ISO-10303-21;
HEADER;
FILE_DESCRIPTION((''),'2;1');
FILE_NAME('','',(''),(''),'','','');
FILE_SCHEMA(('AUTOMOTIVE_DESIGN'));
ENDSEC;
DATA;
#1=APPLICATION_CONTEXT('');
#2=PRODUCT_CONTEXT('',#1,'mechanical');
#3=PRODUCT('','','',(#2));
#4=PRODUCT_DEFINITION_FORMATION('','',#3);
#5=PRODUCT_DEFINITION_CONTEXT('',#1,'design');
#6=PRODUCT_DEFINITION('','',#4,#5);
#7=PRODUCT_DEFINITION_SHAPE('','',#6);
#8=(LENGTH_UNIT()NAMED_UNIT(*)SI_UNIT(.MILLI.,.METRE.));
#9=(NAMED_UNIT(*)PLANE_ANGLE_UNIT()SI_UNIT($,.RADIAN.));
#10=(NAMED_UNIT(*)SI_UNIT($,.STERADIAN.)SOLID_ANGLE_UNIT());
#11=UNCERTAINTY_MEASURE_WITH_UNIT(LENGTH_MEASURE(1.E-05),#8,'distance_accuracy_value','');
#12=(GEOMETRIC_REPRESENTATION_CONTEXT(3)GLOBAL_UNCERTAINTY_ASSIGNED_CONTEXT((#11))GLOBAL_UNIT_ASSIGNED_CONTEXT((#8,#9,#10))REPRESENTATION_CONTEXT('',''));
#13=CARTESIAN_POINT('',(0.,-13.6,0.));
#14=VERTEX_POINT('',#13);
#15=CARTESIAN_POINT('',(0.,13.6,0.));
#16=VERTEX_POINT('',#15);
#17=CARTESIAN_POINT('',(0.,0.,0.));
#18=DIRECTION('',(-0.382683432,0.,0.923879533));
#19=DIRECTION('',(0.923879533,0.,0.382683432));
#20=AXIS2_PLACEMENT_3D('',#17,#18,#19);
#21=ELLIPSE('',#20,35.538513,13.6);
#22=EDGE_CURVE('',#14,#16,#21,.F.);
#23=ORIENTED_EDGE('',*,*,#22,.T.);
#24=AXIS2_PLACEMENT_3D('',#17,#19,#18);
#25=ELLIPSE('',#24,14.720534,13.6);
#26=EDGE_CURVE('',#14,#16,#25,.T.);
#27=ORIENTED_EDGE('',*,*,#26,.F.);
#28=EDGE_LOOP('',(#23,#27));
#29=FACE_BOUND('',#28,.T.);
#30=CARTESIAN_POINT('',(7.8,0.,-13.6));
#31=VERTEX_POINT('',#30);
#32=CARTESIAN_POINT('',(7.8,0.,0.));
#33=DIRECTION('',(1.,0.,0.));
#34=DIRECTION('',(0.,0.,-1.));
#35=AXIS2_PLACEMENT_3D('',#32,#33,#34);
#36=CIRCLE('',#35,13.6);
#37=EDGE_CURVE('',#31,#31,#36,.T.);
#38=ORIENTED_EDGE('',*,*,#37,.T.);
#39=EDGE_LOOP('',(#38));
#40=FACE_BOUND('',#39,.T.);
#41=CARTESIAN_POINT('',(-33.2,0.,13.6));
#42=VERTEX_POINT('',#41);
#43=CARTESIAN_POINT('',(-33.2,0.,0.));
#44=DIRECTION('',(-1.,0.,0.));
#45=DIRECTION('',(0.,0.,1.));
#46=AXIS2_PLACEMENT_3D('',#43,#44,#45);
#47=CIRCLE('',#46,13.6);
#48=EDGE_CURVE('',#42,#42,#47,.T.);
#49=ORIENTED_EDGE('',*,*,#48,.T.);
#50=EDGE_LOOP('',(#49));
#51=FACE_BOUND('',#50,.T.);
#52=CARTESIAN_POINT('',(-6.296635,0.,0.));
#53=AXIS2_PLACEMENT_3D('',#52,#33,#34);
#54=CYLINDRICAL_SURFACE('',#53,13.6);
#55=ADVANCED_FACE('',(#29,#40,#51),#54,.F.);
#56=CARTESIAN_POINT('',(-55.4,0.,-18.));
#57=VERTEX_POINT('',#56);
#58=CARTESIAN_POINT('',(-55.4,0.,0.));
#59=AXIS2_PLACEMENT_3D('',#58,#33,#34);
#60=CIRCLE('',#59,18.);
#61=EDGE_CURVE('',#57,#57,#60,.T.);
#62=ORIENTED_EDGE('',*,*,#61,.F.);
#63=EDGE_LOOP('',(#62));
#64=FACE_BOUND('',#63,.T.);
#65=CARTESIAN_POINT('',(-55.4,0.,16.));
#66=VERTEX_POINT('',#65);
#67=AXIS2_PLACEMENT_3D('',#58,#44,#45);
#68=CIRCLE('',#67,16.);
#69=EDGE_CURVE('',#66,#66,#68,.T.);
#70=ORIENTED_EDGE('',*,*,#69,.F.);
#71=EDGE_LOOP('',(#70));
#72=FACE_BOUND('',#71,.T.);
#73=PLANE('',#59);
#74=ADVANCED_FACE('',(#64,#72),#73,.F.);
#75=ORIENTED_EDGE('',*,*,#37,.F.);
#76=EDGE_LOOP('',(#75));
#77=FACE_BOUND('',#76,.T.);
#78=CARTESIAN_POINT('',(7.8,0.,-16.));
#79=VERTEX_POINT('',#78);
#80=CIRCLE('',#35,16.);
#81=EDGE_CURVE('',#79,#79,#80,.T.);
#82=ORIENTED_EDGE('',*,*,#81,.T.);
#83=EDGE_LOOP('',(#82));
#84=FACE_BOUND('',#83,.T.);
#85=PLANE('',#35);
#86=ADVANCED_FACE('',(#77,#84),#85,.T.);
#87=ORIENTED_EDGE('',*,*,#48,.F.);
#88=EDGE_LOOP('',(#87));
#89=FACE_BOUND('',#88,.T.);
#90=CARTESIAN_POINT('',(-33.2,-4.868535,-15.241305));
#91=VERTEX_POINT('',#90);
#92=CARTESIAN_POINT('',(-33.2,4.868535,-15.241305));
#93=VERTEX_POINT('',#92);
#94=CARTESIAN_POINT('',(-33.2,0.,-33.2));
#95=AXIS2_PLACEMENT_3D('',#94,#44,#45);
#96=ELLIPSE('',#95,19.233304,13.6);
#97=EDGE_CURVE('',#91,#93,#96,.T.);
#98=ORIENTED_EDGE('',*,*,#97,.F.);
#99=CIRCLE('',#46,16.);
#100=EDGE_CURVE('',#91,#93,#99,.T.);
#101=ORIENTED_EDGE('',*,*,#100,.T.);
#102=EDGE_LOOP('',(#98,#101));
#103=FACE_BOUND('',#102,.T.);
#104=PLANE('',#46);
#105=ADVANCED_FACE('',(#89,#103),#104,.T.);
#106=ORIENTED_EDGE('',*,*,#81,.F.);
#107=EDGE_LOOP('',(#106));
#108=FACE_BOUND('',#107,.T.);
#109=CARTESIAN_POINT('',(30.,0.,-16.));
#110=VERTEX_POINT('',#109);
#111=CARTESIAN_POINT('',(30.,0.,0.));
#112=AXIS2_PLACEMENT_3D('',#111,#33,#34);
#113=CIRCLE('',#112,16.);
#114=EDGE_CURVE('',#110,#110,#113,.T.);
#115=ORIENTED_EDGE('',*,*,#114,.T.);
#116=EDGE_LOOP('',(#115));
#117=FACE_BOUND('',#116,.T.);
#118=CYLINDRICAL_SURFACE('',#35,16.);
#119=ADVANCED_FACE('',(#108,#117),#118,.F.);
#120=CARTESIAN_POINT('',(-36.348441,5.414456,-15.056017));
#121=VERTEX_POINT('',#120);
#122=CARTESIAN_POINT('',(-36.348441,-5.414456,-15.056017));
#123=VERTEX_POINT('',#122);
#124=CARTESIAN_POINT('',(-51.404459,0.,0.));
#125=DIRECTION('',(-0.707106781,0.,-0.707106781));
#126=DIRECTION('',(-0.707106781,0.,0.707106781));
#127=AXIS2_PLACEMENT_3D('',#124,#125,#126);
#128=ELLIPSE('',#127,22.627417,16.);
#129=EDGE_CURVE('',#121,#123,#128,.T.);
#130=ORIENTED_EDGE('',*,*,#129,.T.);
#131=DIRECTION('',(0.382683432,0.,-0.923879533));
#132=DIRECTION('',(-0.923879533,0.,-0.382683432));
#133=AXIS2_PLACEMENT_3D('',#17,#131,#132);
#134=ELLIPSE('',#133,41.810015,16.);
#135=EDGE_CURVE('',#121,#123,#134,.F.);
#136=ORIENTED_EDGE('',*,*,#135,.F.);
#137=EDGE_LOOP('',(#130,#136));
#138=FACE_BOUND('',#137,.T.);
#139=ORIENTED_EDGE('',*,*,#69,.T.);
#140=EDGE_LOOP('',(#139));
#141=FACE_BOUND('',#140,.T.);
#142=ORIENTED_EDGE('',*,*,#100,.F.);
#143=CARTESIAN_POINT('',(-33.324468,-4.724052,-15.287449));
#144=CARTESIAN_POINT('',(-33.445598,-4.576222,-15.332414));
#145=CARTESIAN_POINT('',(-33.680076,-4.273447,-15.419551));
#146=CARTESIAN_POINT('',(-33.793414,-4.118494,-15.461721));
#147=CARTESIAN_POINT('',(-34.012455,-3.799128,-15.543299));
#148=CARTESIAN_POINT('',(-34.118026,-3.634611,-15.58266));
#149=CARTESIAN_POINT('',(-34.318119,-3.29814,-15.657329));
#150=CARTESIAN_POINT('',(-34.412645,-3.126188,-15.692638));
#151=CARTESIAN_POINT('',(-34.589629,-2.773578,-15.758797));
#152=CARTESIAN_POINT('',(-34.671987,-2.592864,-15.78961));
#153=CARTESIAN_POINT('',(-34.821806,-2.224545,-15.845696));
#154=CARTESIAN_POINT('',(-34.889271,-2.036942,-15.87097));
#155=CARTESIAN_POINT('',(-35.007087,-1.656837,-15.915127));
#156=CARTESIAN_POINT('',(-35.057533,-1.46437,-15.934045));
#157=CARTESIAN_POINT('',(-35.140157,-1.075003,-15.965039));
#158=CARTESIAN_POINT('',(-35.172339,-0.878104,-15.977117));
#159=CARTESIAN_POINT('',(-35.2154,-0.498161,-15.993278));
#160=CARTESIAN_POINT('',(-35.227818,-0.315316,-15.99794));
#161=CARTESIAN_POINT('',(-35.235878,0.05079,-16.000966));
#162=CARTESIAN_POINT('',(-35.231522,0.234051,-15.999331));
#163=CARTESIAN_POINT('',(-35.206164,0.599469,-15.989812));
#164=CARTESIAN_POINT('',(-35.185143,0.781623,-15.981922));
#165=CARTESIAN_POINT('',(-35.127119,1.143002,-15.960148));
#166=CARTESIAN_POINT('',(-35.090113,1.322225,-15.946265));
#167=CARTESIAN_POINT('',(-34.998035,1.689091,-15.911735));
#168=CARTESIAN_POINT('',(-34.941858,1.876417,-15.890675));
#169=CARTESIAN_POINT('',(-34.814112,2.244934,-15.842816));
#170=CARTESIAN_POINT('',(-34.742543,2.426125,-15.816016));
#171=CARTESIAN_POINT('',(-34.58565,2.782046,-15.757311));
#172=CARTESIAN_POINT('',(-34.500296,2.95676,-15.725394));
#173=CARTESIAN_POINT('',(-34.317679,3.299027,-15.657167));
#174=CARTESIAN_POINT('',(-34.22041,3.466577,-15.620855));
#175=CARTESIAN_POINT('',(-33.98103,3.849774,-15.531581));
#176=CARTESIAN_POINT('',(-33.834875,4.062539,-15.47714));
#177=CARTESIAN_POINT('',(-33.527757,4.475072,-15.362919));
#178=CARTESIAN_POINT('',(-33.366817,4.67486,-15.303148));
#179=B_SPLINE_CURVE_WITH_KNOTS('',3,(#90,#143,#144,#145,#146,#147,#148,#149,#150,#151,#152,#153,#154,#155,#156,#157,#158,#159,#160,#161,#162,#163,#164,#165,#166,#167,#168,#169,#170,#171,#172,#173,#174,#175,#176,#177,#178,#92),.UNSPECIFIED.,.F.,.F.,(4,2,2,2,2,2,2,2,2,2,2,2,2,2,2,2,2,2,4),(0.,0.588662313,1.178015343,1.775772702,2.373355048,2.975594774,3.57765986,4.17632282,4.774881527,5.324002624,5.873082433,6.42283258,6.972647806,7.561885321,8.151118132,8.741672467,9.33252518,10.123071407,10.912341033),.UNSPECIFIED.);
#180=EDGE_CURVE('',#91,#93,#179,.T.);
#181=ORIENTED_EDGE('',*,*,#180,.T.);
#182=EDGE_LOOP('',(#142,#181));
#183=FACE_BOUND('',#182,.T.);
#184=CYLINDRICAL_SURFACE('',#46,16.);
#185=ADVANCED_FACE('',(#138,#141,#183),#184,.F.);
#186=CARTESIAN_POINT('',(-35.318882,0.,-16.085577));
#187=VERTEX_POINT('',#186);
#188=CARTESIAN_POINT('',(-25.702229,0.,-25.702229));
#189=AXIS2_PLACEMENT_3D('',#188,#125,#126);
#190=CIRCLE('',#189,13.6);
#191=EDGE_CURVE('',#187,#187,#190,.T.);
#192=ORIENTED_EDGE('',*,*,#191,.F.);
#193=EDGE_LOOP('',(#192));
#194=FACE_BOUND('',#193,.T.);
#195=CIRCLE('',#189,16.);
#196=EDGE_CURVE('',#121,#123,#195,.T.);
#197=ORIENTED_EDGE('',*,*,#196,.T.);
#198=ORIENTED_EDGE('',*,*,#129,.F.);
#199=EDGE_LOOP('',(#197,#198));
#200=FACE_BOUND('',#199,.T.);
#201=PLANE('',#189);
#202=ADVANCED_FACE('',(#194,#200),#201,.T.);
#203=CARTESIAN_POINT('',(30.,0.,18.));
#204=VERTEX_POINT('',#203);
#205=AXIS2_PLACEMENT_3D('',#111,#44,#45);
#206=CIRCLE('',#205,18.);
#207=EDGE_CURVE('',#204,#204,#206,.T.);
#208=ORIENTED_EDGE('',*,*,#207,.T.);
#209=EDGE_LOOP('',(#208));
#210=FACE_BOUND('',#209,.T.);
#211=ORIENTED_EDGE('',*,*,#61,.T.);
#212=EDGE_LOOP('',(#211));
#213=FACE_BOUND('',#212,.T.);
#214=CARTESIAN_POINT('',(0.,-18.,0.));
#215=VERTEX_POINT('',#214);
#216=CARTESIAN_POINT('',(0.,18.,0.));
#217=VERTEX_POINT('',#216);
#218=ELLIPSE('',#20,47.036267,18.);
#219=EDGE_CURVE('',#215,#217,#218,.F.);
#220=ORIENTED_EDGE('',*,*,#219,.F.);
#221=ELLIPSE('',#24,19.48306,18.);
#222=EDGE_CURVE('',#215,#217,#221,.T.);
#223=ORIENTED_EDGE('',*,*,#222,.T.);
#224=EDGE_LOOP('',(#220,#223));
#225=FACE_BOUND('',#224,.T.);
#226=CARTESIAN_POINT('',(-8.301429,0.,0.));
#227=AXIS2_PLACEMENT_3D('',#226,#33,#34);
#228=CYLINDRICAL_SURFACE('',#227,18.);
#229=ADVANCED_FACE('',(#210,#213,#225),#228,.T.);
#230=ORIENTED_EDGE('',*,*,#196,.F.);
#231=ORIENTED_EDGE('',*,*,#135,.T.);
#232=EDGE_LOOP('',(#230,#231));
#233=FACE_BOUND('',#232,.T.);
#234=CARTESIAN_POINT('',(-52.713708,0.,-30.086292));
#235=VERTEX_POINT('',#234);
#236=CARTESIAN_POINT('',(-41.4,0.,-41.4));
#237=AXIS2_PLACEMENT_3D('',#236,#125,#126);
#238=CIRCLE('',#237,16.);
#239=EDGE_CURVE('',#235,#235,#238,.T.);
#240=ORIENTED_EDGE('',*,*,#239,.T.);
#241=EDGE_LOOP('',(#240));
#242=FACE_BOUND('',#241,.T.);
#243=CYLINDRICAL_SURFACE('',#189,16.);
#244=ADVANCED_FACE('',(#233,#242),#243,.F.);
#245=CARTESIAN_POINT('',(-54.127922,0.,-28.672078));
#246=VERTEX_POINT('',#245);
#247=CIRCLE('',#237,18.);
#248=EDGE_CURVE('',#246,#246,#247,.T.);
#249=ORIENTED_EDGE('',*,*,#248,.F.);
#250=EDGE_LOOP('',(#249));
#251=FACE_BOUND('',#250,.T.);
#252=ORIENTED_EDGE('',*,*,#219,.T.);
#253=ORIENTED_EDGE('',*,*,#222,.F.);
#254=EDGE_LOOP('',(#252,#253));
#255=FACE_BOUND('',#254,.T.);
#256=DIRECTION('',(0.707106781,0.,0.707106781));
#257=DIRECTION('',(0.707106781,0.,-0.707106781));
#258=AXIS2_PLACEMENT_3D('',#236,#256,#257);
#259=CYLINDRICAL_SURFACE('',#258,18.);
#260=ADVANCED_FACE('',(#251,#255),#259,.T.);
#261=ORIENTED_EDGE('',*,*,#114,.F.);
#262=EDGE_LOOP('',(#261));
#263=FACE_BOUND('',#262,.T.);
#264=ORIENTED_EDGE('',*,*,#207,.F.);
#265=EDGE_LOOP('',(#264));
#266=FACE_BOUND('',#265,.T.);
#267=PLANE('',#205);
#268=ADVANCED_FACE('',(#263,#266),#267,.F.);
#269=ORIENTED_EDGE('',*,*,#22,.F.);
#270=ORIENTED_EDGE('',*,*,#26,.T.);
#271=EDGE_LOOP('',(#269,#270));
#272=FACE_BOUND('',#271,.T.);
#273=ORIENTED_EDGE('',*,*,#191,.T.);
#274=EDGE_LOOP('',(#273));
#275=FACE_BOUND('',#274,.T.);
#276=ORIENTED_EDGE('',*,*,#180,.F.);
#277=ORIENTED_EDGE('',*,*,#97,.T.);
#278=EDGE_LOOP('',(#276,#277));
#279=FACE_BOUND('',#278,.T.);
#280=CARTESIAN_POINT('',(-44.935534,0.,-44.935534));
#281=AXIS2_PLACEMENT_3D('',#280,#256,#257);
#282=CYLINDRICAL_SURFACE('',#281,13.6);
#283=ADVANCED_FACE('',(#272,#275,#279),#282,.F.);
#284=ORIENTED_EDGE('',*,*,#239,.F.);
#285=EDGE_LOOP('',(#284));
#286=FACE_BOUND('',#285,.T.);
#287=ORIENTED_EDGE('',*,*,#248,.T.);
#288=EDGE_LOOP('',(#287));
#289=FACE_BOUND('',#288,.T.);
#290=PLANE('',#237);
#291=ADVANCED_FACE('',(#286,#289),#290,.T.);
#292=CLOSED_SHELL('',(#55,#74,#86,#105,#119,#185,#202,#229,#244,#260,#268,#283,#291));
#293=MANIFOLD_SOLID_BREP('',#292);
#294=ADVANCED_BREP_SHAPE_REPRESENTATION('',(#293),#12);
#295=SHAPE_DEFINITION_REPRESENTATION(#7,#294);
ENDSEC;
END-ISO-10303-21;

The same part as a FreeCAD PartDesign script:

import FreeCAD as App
import Part
import Sketcher
from FreeCAD import Vector
Q = App.Units.Quantity

doc = App.newDocument("Part")
body = doc.addObject("PartDesign::Body", "Body")

# Sketch on an angled plane
sketch1 = body.newObject("Sketcher::SketchObject", "Sketch")
sketch1.Placement = App.Placement(Vector(-41.4, 0, -41.4), App.Rotation(Vector(0.707106781, 0, -0.707106781), Vector(0, 0.999999999, 0), Vector(0.707106781, 0, 0.707106781), "ZXY"))
sketch1.addGeometry(Part.Circle(Vector(0, 0, 0), Vector(0, 0, 1), 18), False)
sketch1.addConstraint(Sketcher.Constraint("Coincident", 0, 3, -1, 1))
sketch1.addConstraint(Sketcher.Constraint("Diameter", 0, 36.0))

# Sketch on XZ plane
sketch2 = body.newObject("Sketcher::SketchObject", "Sketch001")
sketch2.AttachmentSupport = (doc.getObject("XZ_Plane"), [""])
sketch2.MapMode = "FlatFace"
sketch2.addGeometry(Part.LineSegment(Vector(-41, -41, 0), Vector(0, 0, 0)), False)
sketch2.addGeometry(Part.LineSegment(Vector(0, 0, 0), Vector(30, 0, 0)), False)
sketch2.addConstraint(Sketcher.Constraint("Coincident", 0, 2, 1, 1))
sketch2.addConstraint(Sketcher.Constraint("Horizontal", 1))
sketch2.addConstraint(Sketcher.Constraint("Coincident", 0, 2, -1, 1))
sketch2.addConstraint(Sketcher.Constraint("DistanceX", 1, 1, 1, 2, 30.0))
sketch2.addConstraint(Sketcher.Constraint("Angle", 0, Q("45 deg")))
sketch2.addConstraint(Sketcher.Constraint("DistanceX", 0, 1, -1, 1, 41.4))
doc.recompute()

additivepipe = body.newObject("PartDesign::AdditivePipe", "AdditivePipe")
additivepipe.Profile = sketch1
additivepipe.Spine = (sketch2, ["Edge1", "Edge2"])
additivepipe.Transition = "Right corner"

# Sketch on YZ plane
sketch3 = body.newObject("Sketcher::SketchObject", "Sketch002")
sketch3.AttachmentSupport = (doc.getObject("YZ_Plane"), [""])
sketch3.MapMode = "FlatFace"
sketch3.AttachmentOffset = App.Placement(Vector(0, 0, 30), App.Rotation())
sketch3.addGeometry(Part.Circle(Vector(0, 0, 0), Vector(0, 0, 1), 18), False)
sketch3.addConstraint(Sketcher.Constraint("Coincident", 0, 3, -1, 1))
sketch3.addConstraint(Sketcher.Constraint("Diameter", 0, 36.0))
pad1 = body.newObject("PartDesign::Pad", "Pad")
pad1.Profile = sketch3
pad1.Length = 85.4
pad1.Reversed = True

# Sketch on an angled plane
sketch4 = body.newObject("Sketcher::SketchObject", "Sketch003")
sketch4.Placement = App.Placement(Vector(-41.4, 0, -41.4), App.Rotation(Vector(0.707106781, 0, -0.707106781), Vector(0, 0.999999999, 0), Vector(0.707106781, 0, 0.707106781), "ZXY"))
sketch4.addGeometry(Part.Circle(Vector(0, 0, 0), Vector(0, 0, 1), 14), False)
sketch4.addConstraint(Sketcher.Constraint("Coincident", 0, 3, -1, 1))
sketch4.addConstraint(Sketcher.Constraint("Diameter", 0, 27.2))

# Sketch on XZ plane
sketch5 = body.newObject("Sketcher::SketchObject", "Sketch004")
sketch5.AttachmentSupport = (doc.getObject("XZ_Plane"), [""])
sketch5.MapMode = "FlatFace"
sketch5.addGeometry(Part.LineSegment(Vector(-41, -41, 0), Vector(0, 0, 0)), False)
sketch5.addGeometry(Part.LineSegment(Vector(0, 0, 0), Vector(30, 0, 0)), False)
sketch5.addConstraint(Sketcher.Constraint("Coincident", 0, 2, 1, 1))
sketch5.addConstraint(Sketcher.Constraint("Horizontal", 1))
sketch5.addConstraint(Sketcher.Constraint("Coincident", 0, 2, -1, 1))
sketch5.addConstraint(Sketcher.Constraint("DistanceX", 1, 1, 1, 2, 30.0))
sketch5.addConstraint(Sketcher.Constraint("Angle", 0, Q("45 deg")))
sketch5.addConstraint(Sketcher.Constraint("DistanceX", 0, 1, -1, 1, 41.4))
doc.recompute()

subtractivepipe = body.newObject("PartDesign::SubtractivePipe", "SubtractivePipe")
subtractivepipe.Profile = sketch4
subtractivepipe.Spine = (sketch5, ["Edge1", "Edge2"])
subtractivepipe.Transition = "Right corner"

# Sketch on YZ plane
sketch6 = body.newObject("Sketcher::SketchObject", "Sketch005")
sketch6.AttachmentSupport = (doc.getObject("YZ_Plane"), [""])
sketch6.MapMode = "FlatFace"
sketch6.AttachmentOffset = App.Placement(Vector(0, 0, -55.4), App.Rotation())
sketch6.addGeometry(Part.Circle(Vector(0, 0, 0), Vector(0, 0, 1), 14), False)
sketch6.addConstraint(Sketcher.Constraint("Coincident", 0, 3, -1, 1))
sketch6.addConstraint(Sketcher.Constraint("Diameter", 0, 27.2))
pocket1 = body.newObject("PartDesign::Pocket", "Pocket")
pocket1.Profile = sketch6
pocket1.Type = "ThroughAll"
pocket1.Reversed = True

# Sketch on YZ plane
sketch7 = body.newObject("Sketcher::SketchObject", "Sketch006")
sketch7.AttachmentSupport = (doc.getObject("YZ_Plane"), [""])
sketch7.MapMode = "FlatFace"
sketch7.AttachmentOffset = App.Placement(Vector(0, 0, 30), App.Rotation())
sketch7.addGeometry(Part.Circle(Vector(0, 0, 0), Vector(0, 0, 1), 16), False)
sketch7.addConstraint(Sketcher.Constraint("Coincident", 0, 3, -1, 1))
sketch7.addConstraint(Sketcher.Constraint("Diameter", 0, 32.0))
pocket2 = body.newObject("PartDesign::Pocket", "Pocket001")
pocket2.Profile = sketch7
pocket2.Length = 22.2

# Sketch on an angled plane
sketch8 = body.newObject("Sketcher::SketchObject", "Sketch007")
sketch8.Placement = App.Placement(Vector(-41.4, 0, -41.4), App.Rotation(Vector(-0.707106781, 0, 0.707106781), Vector(0, 0.999999999, 0), Vector(-0.707106781, 0, -0.707106781), "ZXY"))
sketch8.addGeometry(Part.Circle(Vector(0, 0, 0), Vector(0, 0, 1), 16), False)
sketch8.addConstraint(Sketcher.Constraint("Coincident", 0, 3, -1, 1))
sketch8.addConstraint(Sketcher.Constraint("Diameter", 0, 32.0))
pocket3 = body.newObject("PartDesign::Pocket", "Pocket002")
pocket3.Profile = sketch8
pocket3.Length = 22.2

# Sketch on YZ plane
sketch9 = body.newObject("Sketcher::SketchObject", "Sketch008")
sketch9.AttachmentSupport = (doc.getObject("YZ_Plane"), [""])
sketch9.MapMode = "FlatFace"
sketch9.AttachmentOffset = App.Placement(Vector(0, 0, -33.2), App.Rotation())
sketch9.addGeometry(Part.Circle(Vector(0, 0, 0), Vector(0, 0, 1), 16), False)
sketch9.addConstraint(Sketcher.Constraint("Coincident", 0, 3, -1, 1))
sketch9.addConstraint(Sketcher.Constraint("Diameter", 0, 32.0))
pocket4 = body.newObject("PartDesign::Pocket", "Pocket003")
pocket4.Profile = sketch9
pocket4.Length = 22.2

doc.recompute()
